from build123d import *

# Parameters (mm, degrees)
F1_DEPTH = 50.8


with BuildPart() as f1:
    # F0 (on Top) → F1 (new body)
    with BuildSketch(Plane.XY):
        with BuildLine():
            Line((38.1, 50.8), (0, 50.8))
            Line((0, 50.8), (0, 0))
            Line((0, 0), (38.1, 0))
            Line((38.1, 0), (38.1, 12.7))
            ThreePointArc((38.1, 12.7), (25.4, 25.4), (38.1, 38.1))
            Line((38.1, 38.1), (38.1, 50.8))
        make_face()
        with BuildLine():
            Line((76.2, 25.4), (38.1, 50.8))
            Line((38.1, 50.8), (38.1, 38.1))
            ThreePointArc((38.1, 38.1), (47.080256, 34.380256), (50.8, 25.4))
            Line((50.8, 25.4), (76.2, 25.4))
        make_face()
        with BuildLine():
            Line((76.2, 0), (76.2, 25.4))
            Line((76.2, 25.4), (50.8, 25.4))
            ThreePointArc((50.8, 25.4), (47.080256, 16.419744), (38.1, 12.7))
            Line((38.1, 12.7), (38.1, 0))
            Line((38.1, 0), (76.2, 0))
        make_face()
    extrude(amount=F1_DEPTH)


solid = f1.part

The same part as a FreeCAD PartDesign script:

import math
import FreeCAD as App
import Part
import Sketcher
from FreeCAD import Vector
Q = App.Units.Quantity


def add_polygon(sketch, points):
    """Adds a closed chain of lines whose ends are joined by coincident constraints."""
    first, n = sketch.GeometryCount, len(points)
    for a, b in zip(points, points[1:] + points[:1]):
        sketch.addGeometry(Part.LineSegment(App.Vector(*a, 0), App.Vector(*b, 0)), False)
    for i in range(n):
        sketch.addConstraint(Sketcher.Constraint("Coincident", first + i, 2, first + (i + 1) % n, 1))

doc = App.newDocument("Part")
body = doc.addObject("PartDesign::Body", "Body")

# Sketch on XY plane
sketch1 = body.newObject("Sketcher::SketchObject", "Sketch")
sketch1.AttachmentSupport = (doc.getObject("XY_Plane"), [""])
sketch1.MapMode = "FlatFace"
add_polygon(sketch1, [(38, 51), (0, 51), (0, 0), (76, 0), (76, 25)])  # lines 0-4
sketch1.addGeometry(Part.ArcOfCircle(Part.Circle(Vector(38, 25, 0), Vector(0, 0, 1), 13), math.radians(90), math.radians(270)), False)  # 5
sketch1.addGeometry(Part.ArcOfCircle(Part.Circle(Vector(38, 25, 0), Vector(0, 0, 1), 13), math.radians(0), math.radians(90)), False)  # 6
sketch1.addGeometry(Part.ArcOfCircle(Part.Circle(Vector(38, 25, 0), Vector(0, 0, 1), 13), math.radians(-90), math.radians(0)), False)  # 7
sketch1.addConstraint(Sketcher.Constraint("Tangent", 5, 1, 6, 2))
sketch1.addConstraint(Sketcher.Constraint("Tangent", 6, 1, 7, 2))
sketch1.addConstraint(Sketcher.Constraint("Tangent", 7, 1, 5, 2))
sketch1.addConstraint(Sketcher.Constraint("Horizontal", 0))
sketch1.addConstraint(Sketcher.Constraint("Vertical", 1))
sketch1.addConstraint(Sketcher.Constraint("Horizontal", 2))
sketch1.addConstraint(Sketcher.Constraint("Vertical", 3))
sketch1.addConstraint(Sketcher.Constraint("Coincident", 1, 2, -1, 1))
sketch1.addConstraint(Sketcher.Constraint("Horizontal", 7, 3, 3, 2))
sketch1.addConstraint(Sketcher.Constraint("Horizontal", 3, 2, 6, 1))
sketch1.addConstraint(Sketcher.Constraint("Vertical", 7, 3, 4, 2))
sketch1.addConstraint(Sketcher.Constraint("Vertical", 4, 2, 5, 1))
sketch1.addConstraint(Sketcher.Constraint("Vertical", 5, 1, 7, 1))
sketch1.addConstraint(Sketcher.Constraint("Radius", 5, Q("0.5 in")))
sketch1.addConstraint(Sketcher.Constraint("DistanceX", 2, 1, 2, 2, Q("3 in")))
sketch1.addConstraint(Sketcher.Constraint("DistanceY", 1, 2, 1, 1, Q("2 in")))
sketch1.addConstraint(Sketcher.Constraint("DistanceY", 3, 1, 3, 2, Q("1 in")))
sketch1.addConstraint(Sketcher.Constraint("DistanceX", 0, 2, 0, 1, Q("1.5 in")))
pad1 = body.newObject("PartDesign::Pad", "Pad")
pad1.Profile = sketch1
pad1.Length = Q("2 in")

doc.recompute()
